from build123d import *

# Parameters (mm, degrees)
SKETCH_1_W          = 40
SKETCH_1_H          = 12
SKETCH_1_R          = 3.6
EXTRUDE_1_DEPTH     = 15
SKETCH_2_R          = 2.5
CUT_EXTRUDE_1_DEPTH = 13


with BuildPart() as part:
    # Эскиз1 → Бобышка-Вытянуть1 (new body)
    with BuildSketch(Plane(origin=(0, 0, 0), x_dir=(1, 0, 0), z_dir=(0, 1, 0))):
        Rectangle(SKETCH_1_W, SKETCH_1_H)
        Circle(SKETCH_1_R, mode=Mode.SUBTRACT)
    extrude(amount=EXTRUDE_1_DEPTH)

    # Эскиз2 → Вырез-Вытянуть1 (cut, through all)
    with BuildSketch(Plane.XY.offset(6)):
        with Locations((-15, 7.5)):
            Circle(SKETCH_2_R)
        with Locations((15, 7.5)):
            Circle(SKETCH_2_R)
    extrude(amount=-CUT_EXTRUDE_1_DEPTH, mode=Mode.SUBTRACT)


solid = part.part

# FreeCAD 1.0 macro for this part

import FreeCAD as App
import Part
import Sketcher

doc = App.newDocument("Part")
body = doc.addObject("PartDesign::Body", "Body")

sketch1 = body.newObject("Sketcher::SketchObject", "Sketch")
sketch1.AttachmentSupport = (doc.getObject("XZ_Plane"), [""])
sketch1.MapMode = "FlatFace"
sketch1.addGeometry([
    Part.LineSegment(App.Vector(-20, -6, 0), App.Vector(-20, 6, 0)),
    Part.LineSegment(App.Vector(-20, 6, 0), App.Vector(20, 6, 0)),
    Part.LineSegment(App.Vector(20, 6, 0), App.Vector(20, -6, 0)),
    Part.LineSegment(App.Vector(20, -6, 0), App.Vector(-20, -6, 0)),
    Part.Circle(App.Vector(0, 0, 0), App.Vector(0, 0, 1), 3.6),
], False)
sketch1.addConstraint([
    Sketcher.Constraint("Coincident", 0, 2, 1, 1),
    Sketcher.Constraint("Coincident", 1, 2, 2, 1),
    Sketcher.Constraint("Coincident", 2, 2, 3, 1),
    Sketcher.Constraint("Coincident", 3, 2, 0, 1),
    Sketcher.Constraint("Vertical", 0),
    Sketcher.Constraint("Horizontal", 1),
    Sketcher.Constraint("Vertical", 2),
    Sketcher.Constraint("Horizontal", 3),
    Sketcher.Constraint("Coincident", 4, 3, -1, 1),
    Sketcher.Constraint("Symmetric", 0, 2, 2, 2, -1, 1),
    Sketcher.Constraint("Diameter", 4, 7.2),
    Sketcher.Constraint("DistanceX", 1, 1, 1, 2, 40.0),
    Sketcher.Constraint("DistanceY", 0, 1, 0, 2, 12.0),
])
pad1 = body.newObject("PartDesign::Pad", "Pad")
pad1.Profile = sketch1
pad1.Length = 15
pad1.Reversed = True

sketch2 = body.newObject("Sketcher::SketchObject", "Sketch001")
sketch2.AttachmentSupport = (doc.getObject("XY_Plane"), [""])
sketch2.MapMode = "FlatFace"
sketch2.AttachmentOffset = App.Placement(App.Vector(0, 0, 6), App.Rotation())
sketch2.addGeometry([
    Part.Circle(App.Vector(-15, 7.5, 0), App.Vector(0, 0, 1), 2.5),
    Part.Circle(App.Vector(15, 7.5, 0), App.Vector(0, 0, 1), 2.5),
], False)
sketch2.addConstraint([
    Sketcher.Constraint("Equal", 0, 1),
    Sketcher.Constraint("Symmetric", 0, 3, 1, 3, -2),
    Sketcher.Constraint("Diameter", 0, 5.0),
    Sketcher.Constraint("DistanceX", 0, 3, -1, 1, 15.0),
    Sketcher.Constraint("DistanceY", -1, 1, 0, 3, 7.5),
])
pocket1 = body.newObject("PartDesign::Pocket", "Pocket")
pocket1.Profile = sketch2
pocket1.Type = "ThroughAll"

doc.recompute()
